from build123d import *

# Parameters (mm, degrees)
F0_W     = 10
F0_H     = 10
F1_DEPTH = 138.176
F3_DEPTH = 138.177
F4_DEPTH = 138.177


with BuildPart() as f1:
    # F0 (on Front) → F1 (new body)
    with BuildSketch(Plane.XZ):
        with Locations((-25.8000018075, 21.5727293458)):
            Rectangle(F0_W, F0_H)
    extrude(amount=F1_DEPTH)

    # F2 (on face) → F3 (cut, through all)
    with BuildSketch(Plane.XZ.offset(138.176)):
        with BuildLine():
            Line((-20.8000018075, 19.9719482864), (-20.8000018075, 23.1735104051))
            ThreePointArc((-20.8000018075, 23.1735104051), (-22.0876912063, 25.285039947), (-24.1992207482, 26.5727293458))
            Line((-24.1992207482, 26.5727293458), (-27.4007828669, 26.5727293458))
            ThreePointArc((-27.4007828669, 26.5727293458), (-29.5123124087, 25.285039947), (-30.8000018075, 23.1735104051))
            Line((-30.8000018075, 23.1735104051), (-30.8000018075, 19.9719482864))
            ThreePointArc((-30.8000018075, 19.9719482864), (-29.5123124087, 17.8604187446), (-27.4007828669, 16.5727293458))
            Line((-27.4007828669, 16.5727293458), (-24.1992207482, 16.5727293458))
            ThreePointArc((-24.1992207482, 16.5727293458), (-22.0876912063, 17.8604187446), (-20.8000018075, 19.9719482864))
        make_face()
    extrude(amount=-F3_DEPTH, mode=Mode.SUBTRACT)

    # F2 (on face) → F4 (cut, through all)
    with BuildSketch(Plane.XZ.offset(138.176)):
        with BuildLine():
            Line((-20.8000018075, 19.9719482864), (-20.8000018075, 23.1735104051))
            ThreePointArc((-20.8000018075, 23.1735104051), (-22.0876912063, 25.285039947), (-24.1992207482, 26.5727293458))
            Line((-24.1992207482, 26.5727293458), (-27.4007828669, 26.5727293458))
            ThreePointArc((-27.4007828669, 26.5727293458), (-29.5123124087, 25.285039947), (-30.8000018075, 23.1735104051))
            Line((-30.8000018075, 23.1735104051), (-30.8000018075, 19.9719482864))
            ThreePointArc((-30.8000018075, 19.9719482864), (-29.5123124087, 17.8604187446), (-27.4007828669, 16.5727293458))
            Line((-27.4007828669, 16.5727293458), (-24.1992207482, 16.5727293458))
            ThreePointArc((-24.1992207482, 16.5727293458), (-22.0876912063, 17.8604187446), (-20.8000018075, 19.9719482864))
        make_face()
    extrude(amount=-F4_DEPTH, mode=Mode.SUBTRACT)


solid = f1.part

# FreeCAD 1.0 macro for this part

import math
import FreeCAD as App
import Part
import Sketcher

V = App.Vector

doc = App.newDocument("Part")
body = doc.addObject("PartDesign::Body", "Body")
body.AllowCompound = True

sketch1 = body.newObject("Sketcher::SketchObject", "Sketch")
sketch1.AttachmentSupport = (doc.getObject("XZ_Plane"), [""])
sketch1.MapMode = "FlatFace"
sketch1.addGeometry(Part.LineSegment(V(-31, 27, 0), V(-31, 17, 0)), False)
sketch1.addGeometry(Part.LineSegment(V(-31, 17, 0), V(-21, 17, 0)), False)
sketch1.addGeometry(Part.LineSegment(V(-21, 17, 0), V(-21, 27, 0)), False)
sketch1.addGeometry(Part.LineSegment(V(-21, 27, 0), V(-31, 27, 0)), False)
sketch1.addConstraint(Sketcher.Constraint("Coincident", 0, 2, 1, 1))
sketch1.addConstraint(Sketcher.Constraint("Coincident", 1, 2, 2, 1))
sketch1.addConstraint(Sketcher.Constraint("Coincident", 2, 2, 3, 1))
sketch1.addConstraint(Sketcher.Constraint("Coincident", 3, 2, 0, 1))
sketch1.addConstraint(Sketcher.Constraint("Vertical", 0))
sketch1.addConstraint(Sketcher.Constraint("Horizontal", 1))
sketch1.addConstraint(Sketcher.Constraint("Vertical", 2))
sketch1.addConstraint(Sketcher.Constraint("Horizontal", 3))
sketch1.addConstraint(Sketcher.Constraint("Equal", 3, 0))
sketch1.addConstraint(Sketcher.Constraint("DistanceX", 1, 1, 1, 2, 10.0))
sketch1.addConstraint(Sketcher.Constraint("DistanceX", 0, 2, -1, 1, 30.800002))
sketch1.addConstraint(Sketcher.Constraint("DistanceY", -1, 1, 0, 2, 16.572729))
pad1 = body.newObject("PartDesign::Pad", "Pad")
pad1.Profile = sketch1
pad1.Length = 138.176

sketch2 = body.newObject("Sketcher::SketchObject", "Sketch001")
sketch2.AttachmentSupport = (doc.getObject("XZ_Plane"), [""])
sketch2.MapMode = "FlatFace"
sketch2.AttachmentOffset = App.Placement(V(0, 0, 138.176), App.Rotation())
sketch2.addGeometry(Part.LineSegment(V(-20.8, 20, 0), V(-20.8, 23.2, 0)), False)
sketch2.addGeometry(Part.ArcOfCircle(Part.Circle(V(-25.8, 21.6, 0), V(0, 0, 1), 5.2), math.radians(18), math.radians(72)), False)
sketch2.addGeometry(Part.LineSegment(V(-24.2, 26.6, 0), V(-27.4, 26.6, 0)), False)
sketch2.addGeometry(Part.ArcOfCircle(Part.Circle(V(-25.8, 21.6, 0), V(0, 0, 1), 5.2), math.radians(108), math.radians(162)), False)
sketch2.addGeometry(Part.LineSegment(V(-30.8, 23.2, 0), V(-30.8, 20, 0)), False)
sketch2.addGeometry(Part.ArcOfCircle(Part.Circle(V(-25.8, 21.6, 0), V(0, 0, 1), 5.2), math.radians(-162), math.radians(-108)), False)
sketch2.addGeometry(Part.LineSegment(V(-27.4, 16.6, 0), V(-24.2, 16.6, 0)), False)
sketch2.addGeometry(Part.ArcOfCircle(Part.Circle(V(-25.8, 21.6, 0), V(0, 0, 1), 5.2), math.radians(-72), math.radians(-18)), False)
sketch2.addConstraint(Sketcher.Constraint("Coincident", 0, 2, 1, 1))
sketch2.addConstraint(Sketcher.Constraint("Coincident", 1, 2, 2, 1))
sketch2.addConstraint(Sketcher.Constraint("Coincident", 2, 2, 3, 1))
sketch2.addConstraint(Sketcher.Constraint("Coincident", 3, 2, 4, 1))
sketch2.addConstraint(Sketcher.Constraint("Coincident", 4, 2, 5, 1))
sketch2.addConstraint(Sketcher.Constraint("Coincident", 5, 2, 6, 1))
sketch2.addConstraint(Sketcher.Constraint("Coincident", 6, 2, 7, 1))
sketch2.addConstraint(Sketcher.Constraint("Coincident", 7, 2, 0, 1))
sketch2.addConstraint(Sketcher.Constraint("Vertical", 0))
sketch2.addConstraint(Sketcher.Constraint("Horizontal", 2))
sketch2.addConstraint(Sketcher.Constraint("Vertical", 4))
sketch2.addConstraint(Sketcher.Constraint("Horizontal", 6))
sketch2.addConstraint(Sketcher.Constraint("Coincident", 3, 3, 1, 3))
sketch2.addConstraint(Sketcher.Constraint("Coincident", 5, 3, 1, 3))
sketch2.addConstraint(Sketcher.Constraint("Coincident", 7, 3, 1, 3))
sketch2.addConstraint(Sketcher.Constraint("Equal", 1, 3))
sketch2.addConstraint(Sketcher.Constraint("Equal", 3, 5))
sketch2.addConstraint(Sketcher.Constraint("Equal", 5, 7))
sketch2.addConstraint(Sketcher.Constraint("Horizontal", 0, 2, 3, 2))
sketch2.addConstraint(Sketcher.Constraint("Vertical", 2, 2, 5, 2))
sketch2.addConstraint(Sketcher.Constraint("Equal", 6, 0))
sketch2.addConstraint(Sketcher.Constraint("Radius", 1, 5.25))
sketch2.addConstraint(Sketcher.Constraint("DistanceX", 3, 3, 0, 2, 5.0))
sketch2.addConstraint(Sketcher.Constraint("DistanceX", 1, 3, -1, 1, 25.800002))
sketch2.addConstraint(Sketcher.Constraint("DistanceY", -1, 1, 1, 3, 21.572729))
pocket1 = body.newObject("PartDesign::Pocket", "Pocket")
pocket1.Profile = sketch2
pocket1.Type = "ThroughAll"

sketch3 = body.newObject("Sketcher::SketchObject", "Sketch002")
sketch3.AttachmentSupport = (doc.getObject("XZ_Plane"), [""])
sketch3.MapMode = "FlatFace"
sketch3.AttachmentOffset = App.Placement(V(0, 0, 138.176), App.Rotation())
sketch3.addGeometry(Part.LineSegment(V(-20.8, 20, 0), V(-20.8, 23.2, 0)), False)
sketch3.addGeometry(Part.ArcOfCircle(Part.Circle(V(-25.8, 21.6, 0), V(0, 0, 1), 5.2), math.radians(18), math.radians(72)), False)
sketch3.addGeometry(Part.LineSegment(V(-24.2, 26.6, 0), V(-27.4, 26.6, 0)), False)
sketch3.addGeometry(Part.ArcOfCircle(Part.Circle(V(-25.8, 21.6, 0), V(0, 0, 1), 5.2), math.radians(108), math.radians(162)), False)
sketch3.addGeometry(Part.LineSegment(V(-30.8, 23.2, 0), V(-30.8, 20, 0)), False)
sketch3.addGeometry(Part.ArcOfCircle(Part.Circle(V(-25.8, 21.6, 0), V(0, 0, 1), 5.2), math.radians(-162), math.radians(-108)), False)
sketch3.addGeometry(Part.LineSegment(V(-27.4, 16.6, 0), V(-24.2, 16.6, 0)), False)
sketch3.addGeometry(Part.ArcOfCircle(Part.Circle(V(-25.8, 21.6, 0), V(0, 0, 1), 5.2), math.radians(-72), math.radians(-18)), False)
sketch3.addConstraint(Sketcher.Constraint("Coincident", 0, 2, 1, 1))
sketch3.addConstraint(Sketcher.Constraint("Coincident", 1, 2, 2, 1))
sketch3.addConstraint(Sketcher.Constraint("Coincident", 2, 2, 3, 1))
sketch3.addConstraint(Sketcher.Constraint("Coincident", 3, 2, 4, 1))
sketch3.addConstraint(Sketcher.Constraint("Coincident", 4, 2, 5, 1))
sketch3.addConstraint(Sketcher.Constraint("Coincident", 5, 2, 6, 1))
sketch3.addConstraint(Sketcher.Constraint("Coincident", 6, 2, 7, 1))
sketch3.addConstraint(Sketcher.Constraint("Coincident", 7, 2, 0, 1))
sketch3.addConstraint(Sketcher.Constraint("Vertical", 0))
sketch3.addConstraint(Sketcher.Constraint("Horizontal", 2))
sketch3.addConstraint(Sketcher.Constraint("Vertical", 4))
sketch3.addConstraint(Sketcher.Constraint("Horizontal", 6))
sketch3.addConstraint(Sketcher.Constraint("Coincident", 3, 3, 1, 3))
sketch3.addConstraint(Sketcher.Constraint("Coincident", 5, 3, 1, 3))
sketch3.addConstraint(Sketcher.Constraint("Coincident", 7, 3, 1, 3))
sketch3.addConstraint(Sketcher.Constraint("Equal", 1, 3))
sketch3.addConstraint(Sketcher.Constraint("Equal", 3, 5))
sketch3.addConstraint(Sketcher.Constraint("Equal", 5, 7))
sketch3.addConstraint(Sketcher.Constraint("Horizontal", 0, 2, 3, 2))
sketch3.addConstraint(Sketcher.Constraint("Vertical", 2, 2, 5, 2))
sketch3.addConstraint(Sketcher.Constraint("Equal", 6, 0))
sketch3.addConstraint(Sketcher.Constraint("Radius", 1, 5.25))
sketch3.addConstraint(Sketcher.Constraint("DistanceX", 3, 3, 0, 2, 5.0))
sketch3.addConstraint(Sketcher.Constraint("DistanceX", 1, 3, -1, 1, 25.800002))
sketch3.addConstraint(Sketcher.Constraint("DistanceY", -1, 1, 1, 3, 21.572729))
pocket2 = body.newObject("PartDesign::Pocket", "Pocket001")
pocket2.Profile = sketch3
pocket2.Type = "ThroughAll"

doc.recompute()
